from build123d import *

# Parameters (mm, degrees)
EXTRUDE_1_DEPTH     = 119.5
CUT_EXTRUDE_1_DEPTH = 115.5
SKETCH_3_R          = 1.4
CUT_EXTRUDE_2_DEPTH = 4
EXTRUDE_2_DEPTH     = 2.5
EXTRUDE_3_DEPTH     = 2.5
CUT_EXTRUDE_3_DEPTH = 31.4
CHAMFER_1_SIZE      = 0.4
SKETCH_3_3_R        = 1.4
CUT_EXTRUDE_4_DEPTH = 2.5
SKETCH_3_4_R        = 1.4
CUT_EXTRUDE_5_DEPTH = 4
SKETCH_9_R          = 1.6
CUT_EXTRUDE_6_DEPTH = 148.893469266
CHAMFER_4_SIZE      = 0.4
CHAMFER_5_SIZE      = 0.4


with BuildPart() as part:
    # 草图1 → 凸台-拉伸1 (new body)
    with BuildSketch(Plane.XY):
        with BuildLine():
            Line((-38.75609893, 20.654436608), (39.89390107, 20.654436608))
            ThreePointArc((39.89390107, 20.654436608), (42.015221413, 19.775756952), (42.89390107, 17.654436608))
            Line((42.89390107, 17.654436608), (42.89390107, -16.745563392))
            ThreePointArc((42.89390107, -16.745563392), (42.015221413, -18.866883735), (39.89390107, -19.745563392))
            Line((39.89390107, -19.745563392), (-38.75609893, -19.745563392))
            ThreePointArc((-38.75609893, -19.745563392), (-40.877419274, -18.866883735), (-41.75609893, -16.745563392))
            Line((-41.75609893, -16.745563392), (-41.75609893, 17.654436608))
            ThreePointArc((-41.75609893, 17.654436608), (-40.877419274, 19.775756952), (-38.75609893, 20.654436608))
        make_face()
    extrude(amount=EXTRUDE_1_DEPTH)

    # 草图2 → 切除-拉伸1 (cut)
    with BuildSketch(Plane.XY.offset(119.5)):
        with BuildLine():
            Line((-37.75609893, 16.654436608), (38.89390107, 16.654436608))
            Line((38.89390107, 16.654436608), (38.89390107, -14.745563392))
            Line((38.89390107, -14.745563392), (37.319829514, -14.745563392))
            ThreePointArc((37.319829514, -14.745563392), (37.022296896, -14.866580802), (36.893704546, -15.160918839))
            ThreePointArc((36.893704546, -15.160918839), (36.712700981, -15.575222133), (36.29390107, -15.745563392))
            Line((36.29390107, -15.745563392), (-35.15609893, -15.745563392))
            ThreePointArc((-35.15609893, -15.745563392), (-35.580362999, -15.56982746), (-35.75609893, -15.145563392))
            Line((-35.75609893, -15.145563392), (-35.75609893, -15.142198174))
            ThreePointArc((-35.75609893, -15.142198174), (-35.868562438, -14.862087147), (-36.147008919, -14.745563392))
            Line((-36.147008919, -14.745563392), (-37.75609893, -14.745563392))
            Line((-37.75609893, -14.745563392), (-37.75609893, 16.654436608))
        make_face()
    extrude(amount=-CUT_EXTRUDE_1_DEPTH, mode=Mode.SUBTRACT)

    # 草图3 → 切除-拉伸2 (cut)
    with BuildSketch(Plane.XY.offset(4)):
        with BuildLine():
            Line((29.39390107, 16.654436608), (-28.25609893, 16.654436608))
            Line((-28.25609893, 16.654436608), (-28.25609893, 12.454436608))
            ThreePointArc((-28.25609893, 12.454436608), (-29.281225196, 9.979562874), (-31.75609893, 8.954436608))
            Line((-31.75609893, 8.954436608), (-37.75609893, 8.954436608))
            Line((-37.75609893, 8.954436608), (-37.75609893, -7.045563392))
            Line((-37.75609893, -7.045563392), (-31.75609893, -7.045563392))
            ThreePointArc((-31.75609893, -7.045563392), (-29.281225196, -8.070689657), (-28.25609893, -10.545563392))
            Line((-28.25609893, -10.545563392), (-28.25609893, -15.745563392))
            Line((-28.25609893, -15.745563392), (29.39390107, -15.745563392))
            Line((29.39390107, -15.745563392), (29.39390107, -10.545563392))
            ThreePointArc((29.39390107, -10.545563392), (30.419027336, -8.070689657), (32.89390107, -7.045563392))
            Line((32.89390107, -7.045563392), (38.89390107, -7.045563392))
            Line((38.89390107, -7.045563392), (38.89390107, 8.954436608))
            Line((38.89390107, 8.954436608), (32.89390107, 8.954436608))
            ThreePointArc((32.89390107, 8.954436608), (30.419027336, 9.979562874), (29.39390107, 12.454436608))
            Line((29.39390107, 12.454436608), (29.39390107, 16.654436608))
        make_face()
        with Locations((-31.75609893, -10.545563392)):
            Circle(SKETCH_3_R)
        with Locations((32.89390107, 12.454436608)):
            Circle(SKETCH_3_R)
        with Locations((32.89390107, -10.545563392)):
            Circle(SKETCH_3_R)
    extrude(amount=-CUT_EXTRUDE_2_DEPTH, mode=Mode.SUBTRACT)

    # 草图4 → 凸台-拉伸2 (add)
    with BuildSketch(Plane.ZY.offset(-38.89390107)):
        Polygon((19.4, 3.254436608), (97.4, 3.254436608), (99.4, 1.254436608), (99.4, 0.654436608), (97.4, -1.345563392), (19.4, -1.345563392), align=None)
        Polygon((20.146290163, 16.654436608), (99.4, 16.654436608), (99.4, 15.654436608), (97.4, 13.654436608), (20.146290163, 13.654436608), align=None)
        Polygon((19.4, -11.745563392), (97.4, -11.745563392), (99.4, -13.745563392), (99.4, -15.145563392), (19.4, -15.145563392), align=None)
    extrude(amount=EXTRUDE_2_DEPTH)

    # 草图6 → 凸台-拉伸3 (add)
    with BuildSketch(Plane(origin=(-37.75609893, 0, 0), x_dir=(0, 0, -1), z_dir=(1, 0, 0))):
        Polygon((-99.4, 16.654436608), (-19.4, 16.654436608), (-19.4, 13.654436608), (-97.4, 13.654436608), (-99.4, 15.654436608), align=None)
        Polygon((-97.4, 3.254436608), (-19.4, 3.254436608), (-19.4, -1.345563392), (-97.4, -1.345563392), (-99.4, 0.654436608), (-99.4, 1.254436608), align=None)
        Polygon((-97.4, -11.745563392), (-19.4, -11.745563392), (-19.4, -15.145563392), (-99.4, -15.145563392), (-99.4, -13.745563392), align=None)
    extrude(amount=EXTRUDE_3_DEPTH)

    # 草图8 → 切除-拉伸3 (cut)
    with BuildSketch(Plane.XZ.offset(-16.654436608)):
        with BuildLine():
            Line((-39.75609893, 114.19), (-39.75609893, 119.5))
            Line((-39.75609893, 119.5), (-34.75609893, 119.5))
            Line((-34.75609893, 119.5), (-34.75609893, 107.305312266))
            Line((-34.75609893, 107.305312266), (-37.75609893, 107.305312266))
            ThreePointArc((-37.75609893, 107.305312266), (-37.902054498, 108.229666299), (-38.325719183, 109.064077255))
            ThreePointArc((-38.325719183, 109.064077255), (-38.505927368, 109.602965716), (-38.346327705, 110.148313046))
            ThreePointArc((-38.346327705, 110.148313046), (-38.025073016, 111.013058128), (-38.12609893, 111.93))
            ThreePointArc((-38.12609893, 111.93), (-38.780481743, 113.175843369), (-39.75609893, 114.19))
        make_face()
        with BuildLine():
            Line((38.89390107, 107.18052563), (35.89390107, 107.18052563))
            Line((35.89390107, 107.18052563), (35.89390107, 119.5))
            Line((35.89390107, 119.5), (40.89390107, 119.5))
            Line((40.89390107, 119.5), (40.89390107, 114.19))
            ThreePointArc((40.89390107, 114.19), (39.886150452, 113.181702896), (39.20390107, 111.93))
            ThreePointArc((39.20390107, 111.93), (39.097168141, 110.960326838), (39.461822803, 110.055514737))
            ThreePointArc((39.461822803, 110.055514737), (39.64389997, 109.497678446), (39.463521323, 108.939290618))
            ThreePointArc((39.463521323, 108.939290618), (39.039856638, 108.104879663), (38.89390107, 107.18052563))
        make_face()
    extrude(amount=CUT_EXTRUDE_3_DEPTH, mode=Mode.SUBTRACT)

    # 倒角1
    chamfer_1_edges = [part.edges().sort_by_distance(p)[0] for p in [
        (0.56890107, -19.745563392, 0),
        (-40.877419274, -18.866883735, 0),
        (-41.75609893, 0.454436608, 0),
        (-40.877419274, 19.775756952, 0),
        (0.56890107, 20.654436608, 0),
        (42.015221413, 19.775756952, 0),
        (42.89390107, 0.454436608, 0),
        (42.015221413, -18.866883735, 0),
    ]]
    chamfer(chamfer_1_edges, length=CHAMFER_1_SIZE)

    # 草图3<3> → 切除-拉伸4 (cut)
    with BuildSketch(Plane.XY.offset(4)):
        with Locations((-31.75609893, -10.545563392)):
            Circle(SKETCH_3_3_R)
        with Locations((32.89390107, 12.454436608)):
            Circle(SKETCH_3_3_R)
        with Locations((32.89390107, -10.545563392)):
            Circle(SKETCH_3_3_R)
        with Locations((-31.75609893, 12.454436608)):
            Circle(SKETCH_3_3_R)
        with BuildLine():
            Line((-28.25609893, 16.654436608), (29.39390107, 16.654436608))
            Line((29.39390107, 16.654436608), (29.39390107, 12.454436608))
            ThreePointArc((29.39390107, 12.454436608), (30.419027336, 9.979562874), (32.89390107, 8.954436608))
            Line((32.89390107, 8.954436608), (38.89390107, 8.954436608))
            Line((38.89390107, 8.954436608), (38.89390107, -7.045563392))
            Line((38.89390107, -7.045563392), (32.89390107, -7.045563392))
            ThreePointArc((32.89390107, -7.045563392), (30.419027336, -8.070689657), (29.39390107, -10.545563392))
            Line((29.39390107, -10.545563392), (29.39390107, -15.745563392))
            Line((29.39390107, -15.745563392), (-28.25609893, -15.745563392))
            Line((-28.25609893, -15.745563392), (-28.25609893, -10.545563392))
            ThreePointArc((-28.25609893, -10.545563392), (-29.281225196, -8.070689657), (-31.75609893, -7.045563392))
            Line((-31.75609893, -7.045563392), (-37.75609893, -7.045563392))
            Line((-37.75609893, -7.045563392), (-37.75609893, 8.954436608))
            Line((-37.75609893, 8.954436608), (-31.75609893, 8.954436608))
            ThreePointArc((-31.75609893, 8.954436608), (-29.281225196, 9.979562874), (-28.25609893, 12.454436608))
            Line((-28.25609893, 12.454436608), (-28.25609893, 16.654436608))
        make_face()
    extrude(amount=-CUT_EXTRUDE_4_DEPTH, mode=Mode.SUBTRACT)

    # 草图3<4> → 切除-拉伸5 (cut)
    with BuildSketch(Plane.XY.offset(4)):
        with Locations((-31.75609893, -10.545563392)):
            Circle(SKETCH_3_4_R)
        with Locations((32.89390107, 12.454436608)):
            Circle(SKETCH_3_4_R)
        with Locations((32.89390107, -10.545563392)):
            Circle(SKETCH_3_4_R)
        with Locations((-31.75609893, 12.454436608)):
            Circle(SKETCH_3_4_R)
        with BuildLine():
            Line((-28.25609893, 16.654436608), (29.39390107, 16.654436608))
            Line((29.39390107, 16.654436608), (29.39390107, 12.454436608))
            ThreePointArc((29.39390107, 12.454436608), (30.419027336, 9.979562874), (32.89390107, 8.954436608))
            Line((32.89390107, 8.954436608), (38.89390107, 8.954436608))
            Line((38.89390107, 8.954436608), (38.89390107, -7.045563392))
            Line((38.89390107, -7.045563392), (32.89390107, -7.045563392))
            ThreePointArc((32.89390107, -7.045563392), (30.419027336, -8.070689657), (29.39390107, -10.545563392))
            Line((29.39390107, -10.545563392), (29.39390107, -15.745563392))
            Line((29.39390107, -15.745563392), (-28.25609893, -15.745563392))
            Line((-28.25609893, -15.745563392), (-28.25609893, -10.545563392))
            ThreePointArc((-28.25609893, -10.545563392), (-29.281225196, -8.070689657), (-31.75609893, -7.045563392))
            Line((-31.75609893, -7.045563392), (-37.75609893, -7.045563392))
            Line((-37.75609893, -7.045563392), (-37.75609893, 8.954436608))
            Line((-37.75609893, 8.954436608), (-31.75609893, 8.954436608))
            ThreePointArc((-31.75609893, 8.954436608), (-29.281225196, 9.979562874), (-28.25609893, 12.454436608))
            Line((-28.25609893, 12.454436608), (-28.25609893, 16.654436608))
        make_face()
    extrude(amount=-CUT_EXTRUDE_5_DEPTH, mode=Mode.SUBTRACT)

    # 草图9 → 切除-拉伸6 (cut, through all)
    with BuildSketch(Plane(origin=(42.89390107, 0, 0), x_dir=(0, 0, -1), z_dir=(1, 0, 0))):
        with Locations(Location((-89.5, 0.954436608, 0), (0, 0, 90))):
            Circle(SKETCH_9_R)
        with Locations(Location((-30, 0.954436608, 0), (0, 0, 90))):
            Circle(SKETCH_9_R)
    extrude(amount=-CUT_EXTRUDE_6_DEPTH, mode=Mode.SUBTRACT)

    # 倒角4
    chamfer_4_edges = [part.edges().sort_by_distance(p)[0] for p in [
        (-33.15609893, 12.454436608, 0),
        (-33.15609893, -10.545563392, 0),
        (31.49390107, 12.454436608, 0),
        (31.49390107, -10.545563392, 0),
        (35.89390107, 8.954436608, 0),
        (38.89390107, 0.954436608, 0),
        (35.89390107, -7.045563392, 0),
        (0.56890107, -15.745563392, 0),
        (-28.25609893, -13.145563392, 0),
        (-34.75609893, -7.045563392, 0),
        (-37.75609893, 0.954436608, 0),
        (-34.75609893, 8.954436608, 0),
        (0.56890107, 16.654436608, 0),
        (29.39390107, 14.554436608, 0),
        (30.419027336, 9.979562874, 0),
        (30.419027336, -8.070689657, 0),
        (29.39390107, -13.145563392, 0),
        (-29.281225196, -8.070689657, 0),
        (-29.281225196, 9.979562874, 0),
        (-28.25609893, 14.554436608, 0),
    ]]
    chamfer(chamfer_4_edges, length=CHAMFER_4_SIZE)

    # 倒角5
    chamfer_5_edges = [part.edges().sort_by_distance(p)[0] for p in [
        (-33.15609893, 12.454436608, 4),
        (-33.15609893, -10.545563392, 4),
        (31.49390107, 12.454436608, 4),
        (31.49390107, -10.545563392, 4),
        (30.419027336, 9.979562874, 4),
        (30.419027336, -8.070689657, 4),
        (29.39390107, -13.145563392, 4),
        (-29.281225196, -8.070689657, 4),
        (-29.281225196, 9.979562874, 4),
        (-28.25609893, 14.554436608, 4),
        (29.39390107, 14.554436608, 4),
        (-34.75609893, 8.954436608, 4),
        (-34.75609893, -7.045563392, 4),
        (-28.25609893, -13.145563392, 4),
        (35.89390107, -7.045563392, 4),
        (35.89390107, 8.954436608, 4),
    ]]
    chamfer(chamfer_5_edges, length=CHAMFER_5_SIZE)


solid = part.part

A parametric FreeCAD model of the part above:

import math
import FreeCAD as App
import Part
import Sketcher

V = App.Vector
Q = App.Units.Quantity


def edges_at(feature, points):
    """Names of the edges that pass closest to the given points."""
    edges = feature.Shape.Edges
    near = lambda p: min(range(len(edges)), key=lambda i: edges[i].distToShape(Part.Vertex(*p))[0])
    return sorted({f"Edge{near(p) + 1}" for p in points})

doc = App.newDocument("Part")
body = doc.addObject("PartDesign::Body", "Body")

sketch1 = body.newObject("Sketcher::SketchObject", "Sketch")
sketch1.AttachmentSupport = (doc.getObject("XY_Plane"), [""])
sketch1.MapMode = "FlatFace"
sketch1.addGeometry(Part.LineSegment(V(39.9, 20.7, 0), V(-38.8, 20.7, 0)), False)
sketch1.addGeometry(Part.ArcOfCircle(Part.Circle(V(-38.8, 17.7, 0), V(0, 0, 1), 3), math.radians(90), math.radians(180)), False)
sketch1.addGeometry(Part.LineSegment(V(-41.8, 17.7, 0), V(-41.8, -16.7, 0)), False)
sketch1.addGeometry(Part.ArcOfCircle(Part.Circle(V(-38.8, -16.7, 0), V(0, 0, 1), 3), math.radians(180), math.radians(270)), False)
sketch1.addGeometry(Part.LineSegment(V(-38.8, -19.7, 0), V(39.9, -19.7, 0)), False)
sketch1.addGeometry(Part.ArcOfCircle(Part.Circle(V(39.9, -16.7, 0), V(0, 0, 1), 3), math.radians(-90), math.radians(0)), False)
sketch1.addGeometry(Part.LineSegment(V(42.9, -16.7, 0), V(42.9, 17.7, 0)), False)
sketch1.addGeometry(Part.ArcOfCircle(Part.Circle(V(39.9, 17.7, 0), V(0, 0, 1), 3), math.radians(0), math.radians(90)), False)
sketch1.addConstraint(Sketcher.Constraint("Tangent", 0, 2, 1, 1))
sketch1.addConstraint(Sketcher.Constraint("Tangent", 1, 2, 2, 1))
sketch1.addConstraint(Sketcher.Constraint("Tangent", 2, 2, 3, 1))
sketch1.addConstraint(Sketcher.Constraint("Tangent", 3, 2, 4, 1))
sketch1.addConstraint(Sketcher.Constraint("Tangent", 4, 2, 5, 1))
sketch1.addConstraint(Sketcher.Constraint("Tangent", 5, 2, 6, 1))
sketch1.addConstraint(Sketcher.Constraint("Tangent", 6, 2, 7, 1))
sketch1.addConstraint(Sketcher.Constraint("Tangent", 7, 2, 0, 1))
sketch1.addConstraint(Sketcher.Constraint("Horizontal", 0))
sketch1.addConstraint(Sketcher.Constraint("Vertical", 2))
sketch1.addConstraint(Sketcher.Constraint("Horizontal", 4))
sketch1.addConstraint(Sketcher.Constraint("Vertical", 6))
sketch1.addConstraint(Sketcher.Constraint("Equal", 1, 3))
sketch1.addConstraint(Sketcher.Constraint("Equal", 3, 5))
sketch1.addConstraint(Sketcher.Constraint("Equal", 5, 7))
sketch1.addConstraint(Sketcher.Constraint("Radius", 1, Q("3 mm")))
sketch1.addConstraint(Sketcher.Constraint("DistanceY", 2, 2, 2, 1, Q("34.4 mm")))
sketch1.addConstraint(Sketcher.Constraint("DistanceX", 0, 2, 0, 1, Q("78.65 mm")))
sketch1.addConstraint(Sketcher.Constraint("DistanceX", 1, 3, -1, 1, Q("38.756099 mm")))
sketch1.addConstraint(Sketcher.Constraint("DistanceY", -1, 1, 1, 3, Q("17.654437 mm")))
pad1 = body.newObject("PartDesign::Pad", "Pad")
pad1.Profile = sketch1
pad1.Length = 119.5

sketch2 = body.newObject("Sketcher::SketchObject", "Sketch001")
sketch2.AttachmentSupport = (doc.getObject("XY_Plane"), [""])
sketch2.MapMode = "FlatFace"
sketch2.AttachmentOffset = App.Placement(V(0, 0, 119.5), App.Rotation())
sketch2.addGeometry(Part.LineSegment(V(38.893901, 16.654437, 0), V(-37.756099, 16.654437, 0)), False)
sketch2.addGeometry(Part.LineSegment(V(-37.756099, 16.654437, 0), V(-37.756099, -14.745563, 0)), False)
sketch2.addGeometry(Part.LineSegment(V(-37.756099, -14.745563, 0), V(-36.147009, -14.745563, 0)), False)
sketch2.addGeometry(Part.ArcOfCircle(Part.Circle(V(-36.147009, -15.136515, 0), V(0, 0, 1), 0.390951), math.radians(-0.83297), math.radians(90)), False)
sketch2.addGeometry(Part.LineSegment(V(-35.756099, -15.142198, 0), V(-35.756099, -15.145563, 0)), False)
sketch2.addGeometry(Part.ArcOfCircle(Part.Circle(V(-35.156099, -15.145563, 0), V(0, 0, 1), 0.6), math.radians(-180), math.radians(-90)), False)
sketch2.addGeometry(Part.LineSegment(V(-35.156099, -15.745563, 0), V(36.293901, -15.745563, 0)), False)
sketch2.addGeometry(Part.ArcOfCircle(Part.Circle(V(36.293901, -15.145563, 0), V(0, 0, 1), 0.6), math.radians(-90), math.radians(-1.466497)), False)
sketch2.addGeometry(Part.ArcOfCircle(Part.Circle(V(37.31983, -15.171828, 0), V(0, 0, 1), 0.426265), math.radians(90), math.radians(178.533503)), False)
sketch2.addGeometry(Part.LineSegment(V(37.31983, -14.745563, 0), V(38.893901, -14.745563, 0)), False)
sketch2.addGeometry(Part.LineSegment(V(38.893901, -14.745563, 0), V(38.893901, 16.654437, 0)), False)
sketch2.addConstraint(Sketcher.Constraint("Coincident", 0, 2, 1, 1))
sketch2.addConstraint(Sketcher.Constraint("Coincident", 1, 2, 2, 1))
sketch2.addConstraint(Sketcher.Constraint("Coincident", 2, 2, 3, 2))
sketch2.addConstraint(Sketcher.Constraint("Coincident", 3, 1, 4, 1))
sketch2.addConstraint(Sketcher.Constraint("Coincident", 4, 2, 5, 1))
sketch2.addConstraint(Sketcher.Constraint("Coincident", 5, 2, 6, 1))
sketch2.addConstraint(Sketcher.Constraint("Coincident", 6, 2, 7, 1))
sketch2.addConstraint(Sketcher.Constraint("Coincident", 7, 2, 8, 2))
sketch2.addConstraint(Sketcher.Constraint("Coincident", 8, 1, 9, 1))
sketch2.addConstraint(Sketcher.Constraint("Coincident", 9, 2, 10, 1))
sketch2.addConstraint(Sketcher.Constraint("Coincident", 10, 2, 0, 1))
sketch2.addConstraint(Sketcher.Constraint("Horizontal", 0))
sketch2.addConstraint(Sketcher.Constraint("Vertical", 1))
sketch2.addConstraint(Sketcher.Constraint("Horizontal", 2))
sketch2.addConstraint(Sketcher.Constraint("Vertical", 4))
sketch2.addConstraint(Sketcher.Constraint("Horizontal", 6))
sketch2.addConstraint(Sketcher.Constraint("Horizontal", 9))
sketch2.addConstraint(Sketcher.Constraint("Vertical", 10))
sketch2.addConstraint(Sketcher.Constraint("Radius", 5, Q("0.6 mm")))
sketch2.addConstraint(Sketcher.Constraint("Radius", 7, Q("0.6 mm")))
sketch2.addConstraint(Sketcher.Constraint("DistanceY", 1, 2, 1, 1, Q("31.4 mm")))
sketch2.addConstraint(Sketcher.Constraint("DistanceY", 10, 1, 10, 2, Q("31.4 mm")))
sketch2.addConstraint(Sketcher.Constraint("DistanceX", 1, 2, 3, 1, Q("2 mm")))
sketch2.addConstraint(Sketcher.Constraint("DistanceY", 5, 2, 2, 2, Q("1 mm")))
sketch2.addConstraint(Sketcher.Constraint("DistanceX", 0, 2, 0, 1, Q("76.65 mm")))
sketch2.addConstraint(Sketcher.Constraint("DistanceX", 6, 1, 6, 2, Q("71.45 mm")))
sketch2.addConstraint(Sketcher.Constraint("DistanceY", 4, 2, 2, 2, Q("0.4 mm")))
sketch2.addConstraint(Sketcher.Constraint("DistanceX", 4, 2, 5, 2, Q("0.6 mm")))
sketch2.addConstraint(Sketcher.Constraint("DistanceX", 7, 3, 9, 2, Q("2.6 mm")))
sketch2.addConstraint(Sketcher.Constraint("Radius", 3, Q("0.390951 mm")))
sketch2.addConstraint(Sketcher.Constraint("Radius", 8, Q("0.426265 mm")))
sketch2.addConstraint(Sketcher.Constraint("DistanceX", 2, 1, 2, 2, Q("1.60909 mm")))
sketch2.addConstraint(Sketcher.Constraint("DistanceX", 9, 1, 9, 2, Q("1.574072 mm")))
sketch2.addConstraint(Sketcher.Constraint("DistanceX", 5, 3, -1, 1, Q("35.156099 mm")))
sketch2.addConstraint(Sketcher.Constraint("DistanceY", 3, 1, -1, 1, Q("15.142198 mm")))
sketch2.addConstraint(Sketcher.Constraint("DistanceY", 4, 2, 4, 1, Q("0.003365 mm")))
sketch2.addConstraint(Sketcher.Constraint("DistanceY", 7, 2, -1, 1, Q("15.160919 mm")))
pocket1 = body.newObject("PartDesign::Pocket", "Pocket")
pocket1.Profile = sketch2
pocket1.Length = 115.5

sketch3 = body.newObject("Sketcher::SketchObject", "Sketch002")
sketch3.AttachmentSupport = (doc.getObject("XY_Plane"), [""])
sketch3.MapMode = "FlatFace"
sketch3.AttachmentOffset = App.Placement(V(0, 0, 4), App.Rotation())
sketch3.addGeometry(Part.LineSegment(V(29.4, 16.7, 0), V(-28.3, 16.7, 0)), False)
sketch3.addGeometry(Part.LineSegment(V(-28.3, 16.7, 0), V(-28.3, 12.5, 0)), False)
sketch3.addGeometry(Part.ArcOfCircle(Part.Circle(V(-31.8, 12.5, 0), V(0, 0, 1), 3.5), math.radians(-90), math.radians(0)), False)
sketch3.addGeometry(Part.LineSegment(V(-31.8, 9, 0), V(-37.8, 9, 0)), False)
sketch3.addGeometry(Part.LineSegment(V(-37.8, 9, 0), V(-37.8, -7, 0)), False)
sketch3.addGeometry(Part.LineSegment(V(-37.8, -7, 0), V(-31.8, -7, 0)), False)
sketch3.addGeometry(Part.ArcOfCircle(Part.Circle(V(-31.8, -10.5, 0), V(0, 0, 1), 3.5), math.radians(0), math.radians(90)), False)
sketch3.addGeometry(Part.LineSegment(V(-28.3, -10.5, 0), V(-28.3, -15.7, 0)), False)
sketch3.addGeometry(Part.LineSegment(V(-28.3, -15.7, 0), V(29.4, -15.7, 0)), False)
sketch3.addGeometry(Part.LineSegment(V(29.4, -15.7, 0), V(29.4, -10.5, 0)), False)
sketch3.addGeometry(Part.ArcOfCircle(Part.Circle(V(32.9, -10.5, 0), V(0, 0, 1), 3.5), math.radians(90), math.radians(180)), False)
sketch3.addGeometry(Part.LineSegment(V(32.9, -7, 0), V(38.9, -7, 0)), False)
sketch3.addGeometry(Part.LineSegment(V(38.9, -7, 0), V(38.9, 9, 0)), False)
sketch3.addGeometry(Part.LineSegment(V(38.9, 9, 0), V(32.9, 9, 0)), False)
sketch3.addGeometry(Part.ArcOfCircle(Part.Circle(V(32.9, 12.5, 0), V(0, 0, 1), 3.5), math.radians(-180), math.radians(-90)), False)
sketch3.addGeometry(Part.LineSegment(V(29.4, 12.5, 0), V(29.4, 16.7, 0)), False)
sketch3.addGeometry(Part.Circle(V(-31.8, -10.5, 0), V(0, 0, 1), 1.4), False)
sketch3.addGeometry(Part.Circle(V(32.9, 12.5, 0), V(0, 0, 1), 1.4), False)
sketch3.addGeometry(Part.Circle(V(32.9, -10.5, 0), V(0, 0, 1), 1.4), False)
sketch3.addConstraint(Sketcher.Constraint("Coincident", 0, 2, 1, 1))
sketch3.addConstraint(Sketcher.Constraint("Tangent", 1, 2, 2, 2))
sketch3.addConstraint(Sketcher.Constraint("Tangent", 2, 1, 3, 1))
sketch3.addConstraint(Sketcher.Constraint("Coincident", 3, 2, 4, 1))
sketch3.addConstraint(Sketcher.Constraint("Coincident", 4, 2, 5, 1))
sketch3.addConstraint(Sketcher.Constraint("Tangent", 5, 2, 6, 2))
sketch3.addConstraint(Sketcher.Constraint("Tangent", 6, 1, 7, 1))
sketch3.addConstraint(Sketcher.Constraint("Coincident", 7, 2, 8, 1))
sketch3.addConstraint(Sketcher.Constraint("Coincident", 8, 2, 9, 1))
sketch3.addConstraint(Sketcher.Constraint("Tangent", 9, 2, 10, 2))
sketch3.addConstraint(Sketcher.Constraint("Tangent", 10, 1, 11, 1))
sketch3.addConstraint(Sketcher.Constraint("Coincident", 11, 2, 12, 1))
sketch3.addConstraint(Sketcher.Constraint("Coincident", 12, 2, 13, 1))
sketch3.addConstraint(Sketcher.Constraint("Tangent", 13, 2, 14, 2))
sketch3.addConstraint(Sketcher.Constraint("Tangent", 14, 1, 15, 1))
sketch3.addConstraint(Sketcher.Constraint("Coincident", 15, 2, 0, 1))
sketch3.addConstraint(Sketcher.Constraint("Horizontal", 0))
sketch3.addConstraint(Sketcher.Constraint("Vertical", 1))
sketch3.addConstraint(Sketcher.Constraint("Horizontal", 3))
sketch3.addConstraint(Sketcher.Constraint("Vertical", 4))
sketch3.addConstraint(Sketcher.Constraint("Horizontal", 5))
sketch3.addConstraint(Sketcher.Constraint("Vertical", 7))
sketch3.addConstraint(Sketcher.Constraint("Horizontal", 8))
sketch3.addConstraint(Sketcher.Constraint("Vertical", 9))
sketch3.addConstraint(Sketcher.Constraint("Horizontal", 11))
sketch3.addConstraint(Sketcher.Constraint("Vertical", 12))
sketch3.addConstraint(Sketcher.Constraint("Horizontal", 13))
sketch3.addConstraint(Sketcher.Constraint("Vertical", 15))
sketch3.addConstraint(Sketcher.Constraint("Coincident", 16, 3, 6, 3))
sketch3.addConstraint(Sketcher.Constraint("Coincident", 17, 3, 14, 3))
sketch3.addConstraint(Sketcher.Constraint("Coincident", 18, 3, 10, 3))
sketch3.addConstraint(Sketcher.Constraint("Equal", 2, 6))
sketch3.addConstraint(Sketcher.Constraint("Equal", 6, 10))
sketch3.addConstraint(Sketcher.Constraint("Equal", 10, 14))
sketch3.addConstraint(Sketcher.Constraint("Equal", 16, 17))
sketch3.addConstraint(Sketcher.Constraint("Equal", 17, 18))
sketch3.addConstraint(Sketcher.Constraint("Horizontal", 6, 3, 10, 3))
sketch3.addConstraint(Sketcher.Constraint("Horizontal", 2, 3, 14, 3))
sketch3.addConstraint(Sketcher.Constraint("Vertical", 2, 3, 6, 3))
sketch3.addConstraint(Sketcher.Constraint("Vertical", 10, 3, 14, 3))
sketch3.addConstraint(Sketcher.Constraint("Equal", 5, 11))
sketch3.addConstraint(Sketcher.Constraint("Diameter", 16, Q("2.8 mm")))
sketch3.addConstraint(Sketcher.Constraint("Radius", 2, Q("3.5 mm")))
sketch3.addConstraint(Sketcher.Constraint("DistanceX", 3, 2, 3, 1, Q("6 mm")))
sketch3.addConstraint(Sketcher.Constraint("DistanceY", 4, 2, 4, 1, Q("16 mm")))
sketch3.addConstraint(Sketcher.Constraint("DistanceY", 1, 2, 1, 1, Q("4.2 mm")))
sketch3.addConstraint(Sketcher.Constraint("DistanceY", 7, 2, 7, 1, Q("5.2 mm")))
sketch3.addConstraint(Sketcher.Constraint("DistanceX", 0, 2, 0, 1, Q("57.65 mm")))
sketch3.addConstraint(Sketcher.Constraint("DistanceX", 2, 3, -1, 1, Q("31.756099 mm")))
sketch3.addConstraint(Sketcher.Constraint("DistanceY", -1, 1, 2, 3, Q("12.454437 mm")))
pocket2 = body.newObject("PartDesign::Pocket", "Pocket001")
pocket2.Profile = sketch3
pocket2.Length = 4

sketch4 = body.newObject("Sketcher::SketchObject", "Sketch003")
sketch4.AttachmentSupport = (doc.getObject("YZ_Plane"), [""])
sketch4.MapMode = "FlatFace"
sketch4.AttachmentOffset = App.Placement(V(0, 0, 38.893901), App.Rotation())
sketch4.addGeometry(Part.LineSegment(V(3.3, 97.4, 0), V(3.3, 19.4, 0)), False)
sketch4.addGeometry(Part.LineSegment(V(3.3, 19.4, 0), V(-1.3, 19.4, 0)), False)
sketch4.addGeometry(Part.LineSegment(V(-1.3, 19.4, 0), V(-1.3, 97.4, 0)), False)
sketch4.addGeometry(Part.LineSegment(V(-1.3, 97.4, 0), V(0.7, 99.4, 0)), False)
sketch4.addGeometry(Part.LineSegment(V(0.7, 99.4, 0), V(1.3, 99.4, 0)), False)
sketch4.addGeometry(Part.LineSegment(V(1.3, 99.4, 0), V(3.3, 97.4, 0)), False)
sketch4.addGeometry(Part.LineSegment(V(16.7, 99.4, 0), V(16.7, 20.1, 0)), False)
sketch4.addGeometry(Part.LineSegment(V(16.7, 20.1, 0), V(13.7, 20.1, 0)), False)
sketch4.addGeometry(Part.LineSegment(V(13.7, 20.1, 0), V(13.7, 97.4, 0)), False)
sketch4.addGeometry(Part.LineSegment(V(13.7, 97.4, 0), V(15.7, 99.4, 0)), False)
sketch4.addGeometry(Part.LineSegment(V(15.7, 99.4, 0), V(16.7, 99.4, 0)), False)
sketch4.addGeometry(Part.LineSegment(V(-11.7, 97.4, 0), V(-11.7, 19.4, 0)), False)
sketch4.addGeometry(Part.LineSegment(V(-11.7, 19.4, 0), V(-15.1, 19.4, 0)), False)
sketch4.addGeometry(Part.LineSegment(V(-15.1, 19.4, 0), V(-15.1, 99.4, 0)), False)
sketch4.addGeometry(Part.LineSegment(V(-15.1, 99.4, 0), V(-13.7, 99.4, 0)), False)
sketch4.addGeometry(Part.LineSegment(V(-13.7, 99.4, 0), V(-11.7, 97.4, 0)), False)
sketch4.addConstraint(Sketcher.Constraint("Coincident", 0, 2, 1, 1))
sketch4.addConstraint(Sketcher.Constraint("Coincident", 1, 2, 2, 1))
sketch4.addConstraint(Sketcher.Constraint("Coincident", 2, 2, 3, 1))
sketch4.addConstraint(Sketcher.Constraint("Coincident", 3, 2, 4, 1))
sketch4.addConstraint(Sketcher.Constraint("Coincident", 4, 2, 5, 1))
sketch4.addConstraint(Sketcher.Constraint("Coincident", 5, 2, 0, 1))
sketch4.addConstraint(Sketcher.Constraint("Coincident", 6, 2, 7, 1))
sketch4.addConstraint(Sketcher.Constraint("Coincident", 7, 2, 8, 1))
sketch4.addConstraint(Sketcher.Constraint("Coincident", 8, 2, 9, 1))
sketch4.addConstraint(Sketcher.Constraint("Coincident", 9, 2, 10, 1))
sketch4.addConstraint(Sketcher.Constraint("Coincident", 10, 2, 6, 1))
sketch4.addConstraint(Sketcher.Constraint("Coincident", 11, 2, 12, 1))
sketch4.addConstraint(Sketcher.Constraint("Coincident", 12, 2, 13, 1))
sketch4.addConstraint(Sketcher.Constraint("Coincident", 13, 2, 14, 1))
sketch4.addConstraint(Sketcher.Constraint("Coincident", 14, 2, 15, 1))
sketch4.addConstraint(Sketcher.Constraint("Coincident", 15, 2, 11, 1))
sketch4.addConstraint(Sketcher.Constraint("Vertical", 0))
sketch4.addConstraint(Sketcher.Constraint("Horizontal", 1))
sketch4.addConstraint(Sketcher.Constraint("Vertical", 2))
sketch4.addConstraint(Sketcher.Constraint("Horizontal", 4))
sketch4.addConstraint(Sketcher.Constraint("Vertical", 6))
sketch4.addConstraint(Sketcher.Constraint("Horizontal", 7))
sketch4.addConstraint(Sketcher.Constraint("Vertical", 8))
sketch4.addConstraint(Sketcher.Constraint("Horizontal", 10))
sketch4.addConstraint(Sketcher.Constraint("Vertical", 11))
sketch4.addConstraint(Sketcher.Constraint("Horizontal", 12))
sketch4.addConstraint(Sketcher.Constraint("Vertical", 13))
sketch4.addConstraint(Sketcher.Constraint("Horizontal", 14))
sketch4.addConstraint(Sketcher.Constraint("Perpendicular", 3, 5))
sketch4.addConstraint(Sketcher.Constraint("Perpendicular", 5, 9))
sketch4.addConstraint(Sketcher.Constraint("Perpendicular", 9, 15))
sketch4.addConstraint(Sketcher.Constraint("Horizontal", 2, 2, 5, 2))
sketch4.addConstraint(Sketcher.Constraint("Horizontal", 5, 2, 8, 2))
sketch4.addConstraint(Sketcher.Constraint("Horizontal", 4, 2, 9, 2))
sketch4.addConstraint(Sketcher.Constraint("Horizontal", 1, 2, 11, 2))
sketch4.addConstraint(Sketcher.Constraint("Horizontal", 10, 2, 13, 2))
sketch4.addConstraint(Sketcher.Constraint("Horizontal", 8, 2, 15, 2))
sketch4.addConstraint(Sketcher.Constraint("Equal", 3, 5))
sketch4.addConstraint(Sketcher.Constraint("DistanceX", 7, 2, 7, 1, Q("3 mm")))
sketch4.addConstraint(Sketcher.Constraint("DistanceX", 10, 1, 10, 2, Q("1 mm")))
sketch4.addConstraint(Sketcher.Constraint("DistanceY", 0, 2, 0, 1, Q("78 mm")))
sketch4.addConstraint(Sketcher.Constraint("DistanceX", 1, 2, 1, 1, Q("4.6 mm")))
sketch4.addConstraint(Sketcher.Constraint("DistanceX", 12, 2, 12, 1, Q("3.4 mm")))
sketch4.addConstraint(Sketcher.Constraint("DistanceX", 1, 2, 6, 2, Q("18 mm")))
sketch4.addConstraint(Sketcher.Constraint("DistanceX", 11, 2, 0, 2, Q("15 mm")))
sketch4.addConstraint(Sketcher.Constraint("DistanceY", -1, 1, 0, 2, Q("19.4 mm")))
sketch4.addConstraint(Sketcher.Constraint("DistanceY", 6, 2, 6, 1, Q("79.25371 mm")))
sketch4.addConstraint(Sketcher.Constraint("DistanceX", -1, 1, 0, 2, Q("3.254437 mm")))
pad2 = body.newObject("PartDesign::Pad", "Pad001")
pad2.Profile = sketch4
pad2.Length = 2.5
pad2.Reversed = True

sketch5 = body.newObject("Sketcher::SketchObject", "Sketch004")
sketch5.AttachmentSupport = (doc.getObject("YZ_Plane"), [""])
sketch5.MapMode = "FlatFace"
sketch5.AttachmentOffset = App.Placement(V(0, 0, -37.756099), App.Rotation())
sketch5.addGeometry(Part.LineSegment(V(16.7, 19.4, 0), V(16.7, 99.4, 0)), False)
sketch5.addGeometry(Part.LineSegment(V(16.7, 99.4, 0), V(15.7, 99.4, 0)), False)
sketch5.addGeometry(Part.LineSegment(V(15.7, 99.4, 0), V(13.7, 97.4, 0)), False)
sketch5.addGeometry(Part.LineSegment(V(13.7, 97.4, 0), V(13.7, 19.4, 0)), False)
sketch5.addGeometry(Part.LineSegment(V(13.7, 19.4, 0), V(16.7, 19.4, 0)), False)
sketch5.addGeometry(Part.LineSegment(V(3.3, 19.4, 0), V(3.3, 97.4, 0)), False)
sketch5.addGeometry(Part.LineSegment(V(3.3, 97.4, 0), V(1.3, 99.4, 0)), False)
sketch5.addGeometry(Part.LineSegment(V(1.3, 99.4, 0), V(0.7, 99.4, 0)), False)
sketch5.addGeometry(Part.LineSegment(V(0.7, 99.4, 0), V(-1.3, 97.4, 0)), False)
sketch5.addGeometry(Part.LineSegment(V(-1.3, 97.4, 0), V(-1.3, 19.4, 0)), False)
sketch5.addGeometry(Part.LineSegment(V(-1.3, 19.4, 0), V(3.3, 19.4, 0)), False)
sketch5.addGeometry(Part.LineSegment(V(-11.7, 19.4, 0), V(-11.7, 97.4, 0)), False)
sketch5.addGeometry(Part.LineSegment(V(-11.7, 97.4, 0), V(-13.7, 99.4, 0)), False)
sketch5.addGeometry(Part.LineSegment(V(-13.7, 99.4, 0), V(-15.1, 99.4, 0)), False)
sketch5.addGeometry(Part.LineSegment(V(-15.1, 99.4, 0), V(-15.1, 19.4, 0)), False)
sketch5.addGeometry(Part.LineSegment(V(-15.1, 19.4, 0), V(-11.7, 19.4, 0)), False)
sketch5.addConstraint(Sketcher.Constraint("Coincident", 0, 2, 1, 1))
sketch5.addConstraint(Sketcher.Constraint("Coincident", 1, 2, 2, 1))
sketch5.addConstraint(Sketcher.Constraint("Coincident", 2, 2, 3, 1))
sketch5.addConstraint(Sketcher.Constraint("Coincident", 3, 2, 4, 1))
sketch5.addConstraint(Sketcher.Constraint("Coincident", 4, 2, 0, 1))
sketch5.addConstraint(Sketcher.Constraint("Coincident", 5, 2, 6, 1))
sketch5.addConstraint(Sketcher.Constraint("Coincident", 6, 2, 7, 1))
sketch5.addConstraint(Sketcher.Constraint("Coincident", 7, 2, 8, 1))
sketch5.addConstraint(Sketcher.Constraint("Coincident", 8, 2, 9, 1))
sketch5.addConstraint(Sketcher.Constraint("Coincident", 9, 2, 10, 1))
sketch5.addConstraint(Sketcher.Constraint("Coincident", 10, 2, 5, 1))
sketch5.addConstraint(Sketcher.Constraint("Coincident", 11, 2, 12, 1))
sketch5.addConstraint(Sketcher.Constraint("Coincident", 12, 2, 13, 1))
sketch5.addConstraint(Sketcher.Constraint("Coincident", 13, 2, 14, 1))
sketch5.addConstraint(Sketcher.Constraint("Coincident", 14, 2, 15, 1))
sketch5.addConstraint(Sketcher.Constraint("Coincident", 15, 2, 11, 1))
sketch5.addConstraint(Sketcher.Constraint("Vertical", 0))
sketch5.addConstraint(Sketcher.Constraint("Horizontal", 1))
sketch5.addConstraint(Sketcher.Constraint("Vertical", 3))
sketch5.addConstraint(Sketcher.Constraint("Horizontal", 4))
sketch5.addConstraint(Sketcher.Constraint("Vertical", 5))
sketch5.addConstraint(Sketcher.Constraint("Horizontal", 7))
sketch5.addConstraint(Sketcher.Constraint("Vertical", 9))
sketch5.addConstraint(Sketcher.Constraint("Horizontal", 10))
sketch5.addConstraint(Sketcher.Constraint("Vertical", 11))
sketch5.addConstraint(Sketcher.Constraint("Horizontal", 13))
sketch5.addConstraint(Sketcher.Constraint("Vertical", 14))
sketch5.addConstraint(Sketcher.Constraint("Horizontal", 15))
sketch5.addConstraint(Sketcher.Constraint("Perpendicular", 2, 6))
sketch5.addConstraint(Sketcher.Constraint("Perpendicular", 6, 8))
sketch5.addConstraint(Sketcher.Constraint("Perpendicular", 8, 12))
sketch5.addConstraint(Sketcher.Constraint("Horizontal", 2, 2, 5, 2))
sketch5.addConstraint(Sketcher.Constraint("Horizontal", 1, 2, 6, 2))
sketch5.addConstraint(Sketcher.Constraint("Horizontal", 5, 2, 8, 2))
sketch5.addConstraint(Sketcher.Constraint("Horizontal", 4, 2, 9, 2))
sketch5.addConstraint(Sketcher.Constraint("Horizontal", 8, 2, 11, 2))
sketch5.addConstraint(Sketcher.Constraint("Horizontal", 7, 2, 12, 2))
sketch5.addConstraint(Sketcher.Constraint("Horizontal", 10, 2, 14, 2))
sketch5.addConstraint(Sketcher.Constraint("Equal", 2, 6))
sketch5.addConstraint(Sketcher.Constraint("DistanceX", 1, 2, 1, 1, Q("1 mm")))
sketch5.addConstraint(Sketcher.Constraint("DistanceX", 4, 1, 4, 2, Q("3 mm")))
sketch5.addConstraint(Sketcher.Constraint("DistanceY", 0, 1, 0, 2, Q("80 mm")))
sketch5.addConstraint(Sketcher.Constraint("DistanceX", 7, 2, 7, 1, Q("0.6 mm")))
sketch5.addConstraint(Sketcher.Constraint("DistanceX", 13, 2, 13, 1, Q("1.4 mm")))
sketch5.addConstraint(Sketcher.Constraint("DistanceX", 7, 2, 2, 2, Q("13 mm")))
sketch5.addConstraint(Sketcher.Constraint("DistanceX", 11, 2, 6, 2, Q("13 mm")))
sketch5.addConstraint(Sketcher.Constraint("DistanceY", -1, 1, 0, 2, Q("99.4 mm")))
sketch5.addConstraint(Sketcher.Constraint("DistanceX", -1, 1, 0, 2, Q("16.654437 mm")))
pad3 = body.newObject("PartDesign::Pad", "Pad002")
pad3.Profile = sketch5
pad3.Length = 2.5

sketch6 = body.newObject("Sketcher::SketchObject", "Sketch005")
sketch6.AttachmentSupport = (doc.getObject("XZ_Plane"), [""])
sketch6.MapMode = "FlatFace"
sketch6.AttachmentOffset = App.Placement(V(0, 0, -16.654437), App.Rotation())
sketch6.addGeometry(Part.LineSegment(V(-39.8, 119.5, 0), V(-39.8, 114.2, 0)), False)
sketch6.addGeometry(Part.ArcOfCircle(Part.Circle(V(-42.8, 110.3, 0), V(0, 0, 1), 5), math.radians(20), math.radians(52)), False)
sketch6.addGeometry(Part.ArcOfCircle(Part.Circle(V(-40, 111.3, 0), V(0, 0, 1), 2), math.radians(-34), math.radians(20)), False)
sketch6.addGeometry(Part.ArcOfCircle(Part.Circle(V(-37.6, 109.6, 0), V(0, 0, 1), 0.9), math.radians(146), math.radians(216)), False)
sketch6.addGeometry(Part.ArcOfCircle(Part.Circle(V(-40.8, 107.3, 0), V(0, 0, 1), 3), math.radians(0), math.radians(36)), False)
sketch6.addGeometry(Part.LineSegment(V(-37.8, 107.3, 0), V(-34.8, 107.3, 0)), False)
sketch6.addGeometry(Part.LineSegment(V(-34.8, 107.3, 0), V(-34.8, 119.5, 0)), False)
sketch6.addGeometry(Part.LineSegment(V(-34.8, 119.5, 0), V(-39.8, 119.5, 0)), False)
sketch6.addGeometry(Part.LineSegment(V(35.9, 107.2, 0), V(38.9, 107.2, 0)), False)
sketch6.addGeometry(Part.ArcOfCircle(Part.Circle(V(41.9, 107.2, 0), V(0, 0, 1), 3), math.radians(144), math.radians(180)), False)
sketch6.addGeometry(Part.ArcOfCircle(Part.Circle(V(38.7, 109.5, 0), V(0, 0, 1), 1), math.radians(-36), math.radians(36)), False)
sketch6.addGeometry(Part.ArcOfCircle(Part.Circle(V(41.1, 111.2, 0), V(0, 0, 1), 2), math.radians(160), math.radians(216)), False)
sketch6.addGeometry(Part.ArcOfCircle(Part.Circle(V(43.9, 110.2, 0), V(0, 0, 1), 5), math.radians(127), math.radians(160)), False)
sketch6.addGeometry(Part.LineSegment(V(40.9, 114.2, 0), V(40.9, 119.5, 0)), False)
sketch6.addGeometry(Part.LineSegment(V(40.9, 119.5, 0), V(35.9, 119.5, 0)), False)
sketch6.addGeometry(Part.LineSegment(V(35.9, 119.5, 0), V(35.9, 107.2, 0)), False)
sketch6.addConstraint(Sketcher.Constraint("Coincident", 0, 2, 1, 2))
sketch6.addConstraint(Sketcher.Constraint("Tangent", 1, 1, 2, 2))
sketch6.addConstraint(Sketcher.Constraint("Tangent", 2, 1, 3, 1))
sketch6.addConstraint(Sketcher.Constraint("Tangent", 3, 2, 4, 2))
sketch6.addConstraint(Sketcher.Constraint("Coincident", 4, 1, 5, 1))
sketch6.addConstraint(Sketcher.Constraint("Coincident", 5, 2, 6, 1))
sketch6.addConstraint(Sketcher.Constraint("Coincident", 6, 2, 7, 1))
sketch6.addConstraint(Sketcher.Constraint("Coincident", 7, 2, 0, 1))
sketch6.addConstraint(Sketcher.Constraint("Coincident", 8, 2, 9, 2))
sketch6.addConstraint(Sketcher.Constraint("Tangent", 9, 1, 10, 1))
sketch6.addConstraint(Sketcher.Constraint("Tangent", 10, 2, 11, 2))
sketch6.addConstraint(Sketcher.Constraint("Tangent", 11, 1, 12, 2))
sketch6.addConstraint(Sketcher.Constraint("Coincident", 12, 1, 13, 1))
sketch6.addConstraint(Sketcher.Constraint("Coincident", 13, 2, 14, 1))
sketch6.addConstraint(Sketcher.Constraint("Coincident", 14, 2, 15, 1))
sketch6.addConstraint(Sketcher.Constraint("Coincident", 15, 2, 8, 1))
sketch6.addConstraint(Sketcher.Constraint("Vertical", 0))
sketch6.addConstraint(Sketcher.Constraint("Horizontal", 5))
sketch6.addConstraint(Sketcher.Constraint("Vertical", 6))
sketch6.addConstraint(Sketcher.Constraint("Horizontal", 7))
sketch6.addConstraint(Sketcher.Constraint("Horizontal", 8))
sketch6.addConstraint(Sketcher.Constraint("Vertical", 13))
sketch6.addConstraint(Sketcher.Constraint("Horizontal", 14))
sketch6.addConstraint(Sketcher.Constraint("Vertical", 15))
sketch6.addConstraint(Sketcher.Constraint("Equal", 4, 9))
sketch6.addConstraint(Sketcher.Constraint("Equal", 3, 10))
sketch6.addConstraint(Sketcher.Constraint("Equal", 2, 11))
sketch6.addConstraint(Sketcher.Constraint("Equal", 1, 12))
sketch6.addConstraint(Sketcher.Constraint("Horizontal", 9, 3, 8, 2))
sketch6.addConstraint(Sketcher.Constraint("Horizontal", 1, 1, 11, 1))
sketch6.addConstraint(Sketcher.Constraint("Horizontal", 0, 2, 12, 1))
sketch6.addConstraint(Sketcher.Constraint("Horizontal", 7, 2, 13, 2))
sketch6.addConstraint(Sketcher.Constraint("Equal", 5, 8))
sketch6.addConstraint(Sketcher.Constraint("Equal", 7, 14))
sketch6.addConstraint(Sketcher.Constraint("Radius", 1, Q("5 mm")))
sketch6.addConstraint(Sketcher.Constraint("Radius", 2, Q("2 mm")))
sketch6.addConstraint(Sketcher.Constraint("Radius", 4, Q("3 mm")))
sketch6.addConstraint(Sketcher.Constraint("DistanceX", 5, 1, 5, 2, Q("3 mm")))
sketch6.addConstraint(Sketcher.Constraint("DistanceX", 7, 2, 7, 1, Q("5 mm")))
sketch6.addConstraint(Sketcher.Constraint("Radius", 3, Q("0.95 mm")))
sketch6.addConstraint(Sketcher.Constraint("DistanceY", 0, 2, 0, 1, Q("5.31 mm")))
sketch6.addConstraint(Sketcher.Constraint("DistanceY", -1, 1, 6, 2, Q("119.5 mm")))
sketch6.addConstraint(Sketcher.Constraint("DistanceX", 4, 3, 3, 3, Q("3.2 mm")))
sketch6.addConstraint(Sketcher.Constraint("DistanceX", 10, 3, 9, 3, Q("3.2 mm")))
sketch6.addConstraint(Sketcher.Constraint("DistanceY", -1, 1, 1, 1, Q("111.93 mm")))
sketch6.addConstraint(Sketcher.Constraint("DistanceX", 3, 3, 9, 3, Q("79.45 mm")))
sketch6.addConstraint(Sketcher.Constraint("DistanceX", 1, 1, 3, 3, Q("0.57 mm")))
sketch6.addConstraint(Sketcher.Constraint("DistanceX", 10, 3, 11, 1, Q("0.51 mm")))
sketch6.addConstraint(Sketcher.Constraint("DistanceY", 4, 1, 2, 1, Q("2.843001 mm")))
sketch6.addConstraint(Sketcher.Constraint("DistanceX", 3, 3, -1, 1, Q("37.556099 mm")))
pocket3 = body.newObject("PartDesign::Pocket", "Pocket002")
pocket3.Profile = sketch6
pocket3.Length = 31.4
pocket3.Reversed = True
doc.recompute()

chamfer = body.newObject("PartDesign::Chamfer", "Chamfer")
chamfer.Base = (pocket3, edges_at(pocket3, [
    (0.569, -19.746, 0),
    (-40.877, -18.867, 0),
    (-41.756, 0.454, 0),
    (-40.877, 19.776, 0),
    (0.569, 20.654, 0),
    (42.015, 19.776, 0),
    (42.894, 0.454, 0),
    (42.015, -18.867, 0),
]))
chamfer.Size = 0.4

sketch7 = body.newObject("Sketcher::SketchObject", "Sketch006")
sketch7.AttachmentSupport = (doc.getObject("XY_Plane"), [""])
sketch7.MapMode = "FlatFace"
sketch7.AttachmentOffset = App.Placement(V(0, 0, 4), App.Rotation())
sketch7.addGeometry(Part.Circle(V(-31.8, -10.5, 0), V(0, 0, 1), 1.4), False)
sketch7.addGeometry(Part.Circle(V(32.9, 12.5, 0), V(0, 0, 1), 1.4), False)
sketch7.addGeometry(Part.Circle(V(32.9, -10.5, 0), V(0, 0, 1), 1.4), False)
sketch7.addGeometry(Part.Circle(V(-31.8, 12.5, 0), V(0, 0, 1), 1.4), False)
sketch7.addGeometry(Part.LineSegment(V(29.4, 16.7, 0), V(-28.3, 16.7, 0)), False)
sketch7.addGeometry(Part.LineSegment(V(-28.3, 16.7, 0), V(-28.3, 12.5, 0)), False)
sketch7.addGeometry(Part.ArcOfCircle(Part.Circle(V(-31.8, 12.5, 0), V(0, 0, 1), 3.5), math.radians(-90), math.radians(0)), False)
sketch7.addGeometry(Part.LineSegment(V(-31.8, 9, 0), V(-37.8, 9, 0)), False)
sketch7.addGeometry(Part.LineSegment(V(-37.8, 9, 0), V(-37.8, -7, 0)), False)
sketch7.addGeometry(Part.LineSegment(V(-37.8, -7, 0), V(-31.8, -7, 0)), False)
sketch7.addGeometry(Part.ArcOfCircle(Part.Circle(V(-31.8, -10.5, 0), V(0, 0, 1), 3.5), math.radians(0), math.radians(90)), False)
sketch7.addGeometry(Part.LineSegment(V(-28.3, -10.5, 0), V(-28.3, -15.7, 0)), False)
sketch7.addGeometry(Part.LineSegment(V(-28.3, -15.7, 0), V(29.4, -15.7, 0)), False)
sketch7.addGeometry(Part.LineSegment(V(29.4, -15.7, 0), V(29.4, -10.5, 0)), False)
sketch7.addGeometry(Part.ArcOfCircle(Part.Circle(V(32.9, -10.5, 0), V(0, 0, 1), 3.5), math.radians(90), math.radians(180)), False)
sketch7.addGeometry(Part.LineSegment(V(32.9, -7, 0), V(38.9, -7, 0)), False)
sketch7.addGeometry(Part.LineSegment(V(38.9, -7, 0), V(38.9, 9, 0)), False)
sketch7.addGeometry(Part.LineSegment(V(38.9, 9, 0), V(32.9, 9, 0)), False)
sketch7.addGeometry(Part.ArcOfCircle(Part.Circle(V(32.9, 12.5, 0), V(0, 0, 1), 3.5), math.radians(-180), math.radians(-90)), False)
sketch7.addGeometry(Part.LineSegment(V(29.4, 12.5, 0), V(29.4, 16.7, 0)), False)
sketch7.addConstraint(Sketcher.Constraint("Coincident", 4, 2, 5, 1))
sketch7.addConstraint(Sketcher.Constraint("Tangent", 5, 2, 6, 2))
sketch7.addConstraint(Sketcher.Constraint("Tangent", 6, 1, 7, 1))
sketch7.addConstraint(Sketcher.Constraint("Coincident", 7, 2, 8, 1))
sketch7.addConstraint(Sketcher.Constraint("Coincident", 8, 2, 9, 1))
sketch7.addConstraint(Sketcher.Constraint("Tangent", 9, 2, 10, 2))
sketch7.addConstraint(Sketcher.Constraint("Tangent", 10, 1, 11, 1))
sketch7.addConstraint(Sketcher.Constraint("Coincident", 11, 2, 12, 1))
sketch7.addConstraint(Sketcher.Constraint("Coincident", 12, 2, 13, 1))
sketch7.addConstraint(Sketcher.Constraint("Tangent", 13, 2, 14, 2))
sketch7.addConstraint(Sketcher.Constraint("Tangent", 14, 1, 15, 1))
sketch7.addConstraint(Sketcher.Constraint("Coincident", 15, 2, 16, 1))
sketch7.addConstraint(Sketcher.Constraint("Coincident", 16, 2, 17, 1))
sketch7.addConstraint(Sketcher.Constraint("Tangent", 17, 2, 18, 2))
sketch7.addConstraint(Sketcher.Constraint("Tangent", 18, 1, 19, 1))
sketch7.addConstraint(Sketcher.Constraint("Coincident", 19, 2, 4, 1))
sketch7.addConstraint(Sketcher.Constraint("Horizontal", 4))
sketch7.addConstraint(Sketcher.Constraint("Vertical", 5))
sketch7.addConstraint(Sketcher.Constraint("Horizontal", 7))
sketch7.addConstraint(Sketcher.Constraint("Vertical", 8))
sketch7.addConstraint(Sketcher.Constraint("Horizontal", 9))
sketch7.addConstraint(Sketcher.Constraint("Vertical", 11))
sketch7.addConstraint(Sketcher.Constraint("Horizontal", 12))
sketch7.addConstraint(Sketcher.Constraint("Vertical", 13))
sketch7.addConstraint(Sketcher.Constraint("Horizontal", 15))
sketch7.addConstraint(Sketcher.Constraint("Vertical", 16))
sketch7.addConstraint(Sketcher.Constraint("Horizontal", 17))
sketch7.addConstraint(Sketcher.Constraint("Vertical", 19))
sketch7.addConstraint(Sketcher.Constraint("Coincident", 6, 3, 3, 3))
sketch7.addConstraint(Sketcher.Constraint("Coincident", 10, 3, 0, 3))
sketch7.addConstraint(Sketcher.Constraint("Coincident", 14, 3, 2, 3))
sketch7.addConstraint(Sketcher.Constraint("Coincident", 18, 3, 1, 3))
sketch7.addConstraint(Sketcher.Constraint("Equal", 0, 1))
sketch7.addConstraint(Sketcher.Constraint("Equal", 1, 2))
sketch7.addConstraint(Sketcher.Constraint("Equal", 2, 3))
sketch7.addConstraint(Sketcher.Constraint("Equal", 6, 10))
sketch7.addConstraint(Sketcher.Constraint("Equal", 10, 14))
sketch7.addConstraint(Sketcher.Constraint("Equal", 14, 18))
sketch7.addConstraint(Sketcher.Constraint("Horizontal", 0, 3, 2, 3))
sketch7.addConstraint(Sketcher.Constraint("Horizontal", 1, 3, 3, 3))
sketch7.addConstraint(Sketcher.Constraint("Vertical", 1, 3, 2, 3))
sketch7.addConstraint(Sketcher.Constraint("Vertical", 0, 3, 3, 3))
sketch7.addConstraint(Sketcher.Constraint("Equal", 9, 15))
sketch7.addConstraint(Sketcher.Constraint("Diameter", 0, Q("2.8 mm")))
sketch7.addConstraint(Sketcher.Constraint("Radius", 6, Q("3.5 mm")))
sketch7.addConstraint(Sketcher.Constraint("DistanceX", 7, 2, 7, 1, Q("6 mm")))
sketch7.addConstraint(Sketcher.Constraint("DistanceY", 8, 2, 8, 1, Q("16 mm")))
sketch7.addConstraint(Sketcher.Constraint("DistanceY", 5, 2, 5, 1, Q("4.2 mm")))
sketch7.addConstraint(Sketcher.Constraint("DistanceY", 11, 2, 11, 1, Q("5.2 mm")))
sketch7.addConstraint(Sketcher.Constraint("DistanceX", 4, 2, 4, 1, Q("57.65 mm")))
sketch7.addConstraint(Sketcher.Constraint("DistanceX", 0, 3, -1, 1, Q("31.756099 mm")))
sketch7.addConstraint(Sketcher.Constraint("DistanceY", 0, 3, -1, 1, Q("10.545563 mm")))
pocket4 = body.newObject("PartDesign::Pocket", "Pocket003")
pocket4.Profile = sketch7
pocket4.Length = 2.5

sketch8 = body.newObject("Sketcher::SketchObject", "Sketch007")
sketch8.AttachmentSupport = (doc.getObject("XY_Plane"), [""])
sketch8.MapMode = "FlatFace"
sketch8.AttachmentOffset = App.Placement(V(0, 0, 4), App.Rotation())
sketch8.addGeometry(Part.Circle(V(-31.8, -10.5, 0), V(0, 0, 1), 1.4), False)
sketch8.addGeometry(Part.Circle(V(32.9, 12.5, 0), V(0, 0, 1), 1.4), False)
sketch8.addGeometry(Part.Circle(V(32.9, -10.5, 0), V(0, 0, 1), 1.4), False)
sketch8.addGeometry(Part.Circle(V(-31.8, 12.5, 0), V(0, 0, 1), 1.4), False)
sketch8.addGeometry(Part.LineSegment(V(29.4, 16.7, 0), V(-28.3, 16.7, 0)), False)
sketch8.addGeometry(Part.LineSegment(V(-28.3, 16.7, 0), V(-28.3, 12.5, 0)), False)
sketch8.addGeometry(Part.ArcOfCircle(Part.Circle(V(-31.8, 12.5, 0), V(0, 0, 1), 3.5), math.radians(-90), math.radians(0)), False)
sketch8.addGeometry(Part.LineSegment(V(-31.8, 9, 0), V(-37.8, 9, 0)), False)
sketch8.addGeometry(Part.LineSegment(V(-37.8, 9, 0), V(-37.8, -7, 0)), False)
sketch8.addGeometry(Part.LineSegment(V(-37.8, -7, 0), V(-31.8, -7, 0)), False)
sketch8.addGeometry(Part.ArcOfCircle(Part.Circle(V(-31.8, -10.5, 0), V(0, 0, 1), 3.5), math.radians(0), math.radians(90)), False)
sketch8.addGeometry(Part.LineSegment(V(-28.3, -10.5, 0), V(-28.3, -15.7, 0)), False)
sketch8.addGeometry(Part.LineSegment(V(-28.3, -15.7, 0), V(29.4, -15.7, 0)), False)
sketch8.addGeometry(Part.LineSegment(V(29.4, -15.7, 0), V(29.4, -10.5, 0)), False)
sketch8.addGeometry(Part.ArcOfCircle(Part.Circle(V(32.9, -10.5, 0), V(0, 0, 1), 3.5), math.radians(90), math.radians(180)), False)
sketch8.addGeometry(Part.LineSegment(V(32.9, -7, 0), V(38.9, -7, 0)), False)
sketch8.addGeometry(Part.LineSegment(V(38.9, -7, 0), V(38.9, 9, 0)), False)
sketch8.addGeometry(Part.LineSegment(V(38.9, 9, 0), V(32.9, 9, 0)), False)
sketch8.addGeometry(Part.ArcOfCircle(Part.Circle(V(32.9, 12.5, 0), V(0, 0, 1), 3.5), math.radians(-180), math.radians(-90)), False)
sketch8.addGeometry(Part.LineSegment(V(29.4, 12.5, 0), V(29.4, 16.7, 0)), False)
sketch8.addConstraint(Sketcher.Constraint("Coincident", 4, 2, 5, 1))
sketch8.addConstraint(Sketcher.Constraint("Tangent", 5, 2, 6, 2))
sketch8.addConstraint(Sketcher.Constraint("Tangent", 6, 1, 7, 1))
sketch8.addConstraint(Sketcher.Constraint("Coincident", 7, 2, 8, 1))
sketch8.addConstraint(Sketcher.Constraint("Coincident", 8, 2, 9, 1))
sketch8.addConstraint(Sketcher.Constraint("Tangent", 9, 2, 10, 2))
sketch8.addConstraint(Sketcher.Constraint("Tangent", 10, 1, 11, 1))
sketch8.addConstraint(Sketcher.Constraint("Coincident", 11, 2, 12, 1))
sketch8.addConstraint(Sketcher.Constraint("Coincident", 12, 2, 13, 1))
sketch8.addConstraint(Sketcher.Constraint("Tangent", 13, 2, 14, 2))
sketch8.addConstraint(Sketcher.Constraint("Tangent", 14, 1, 15, 1))
sketch8.addConstraint(Sketcher.Constraint("Coincident", 15, 2, 16, 1))
sketch8.addConstraint(Sketcher.Constraint("Coincident", 16, 2, 17, 1))
sketch8.addConstraint(Sketcher.Constraint("Tangent", 17, 2, 18, 2))
sketch8.addConstraint(Sketcher.Constraint("Tangent", 18, 1, 19, 1))
sketch8.addConstraint(Sketcher.Constraint("Coincident", 19, 2, 4, 1))
sketch8.addConstraint(Sketcher.Constraint("Horizontal", 4))
sketch8.addConstraint(Sketcher.Constraint("Vertical", 5))
sketch8.addConstraint(Sketcher.Constraint("Horizontal", 7))
sketch8.addConstraint(Sketcher.Constraint("Vertical", 8))
sketch8.addConstraint(Sketcher.Constraint("Horizontal", 9))
sketch8.addConstraint(Sketcher.Constraint("Vertical", 11))
sketch8.addConstraint(Sketcher.Constraint("Horizontal", 12))
sketch8.addConstraint(Sketcher.Constraint("Vertical", 13))
sketch8.addConstraint(Sketcher.Constraint("Horizontal", 15))
sketch8.addConstraint(Sketcher.Constraint("Vertical", 16))
sketch8.addConstraint(Sketcher.Constraint("Horizontal", 17))
sketch8.addConstraint(Sketcher.Constraint("Vertical", 19))
sketch8.addConstraint(Sketcher.Constraint("Coincident", 6, 3, 3, 3))
sketch8.addConstraint(Sketcher.Constraint("Coincident", 10, 3, 0, 3))
sketch8.addConstraint(Sketcher.Constraint("Coincident", 14, 3, 2, 3))
sketch8.addConstraint(Sketcher.Constraint("Coincident", 18, 3, 1, 3))
sketch8.addConstraint(Sketcher.Constraint("Equal", 0, 1))
sketch8.addConstraint(Sketcher.Constraint("Equal", 1, 2))
sketch8.addConstraint(Sketcher.Constraint("Equal", 2, 3))
sketch8.addConstraint(Sketcher.Constraint("Equal", 6, 10))
sketch8.addConstraint(Sketcher.Constraint("Equal", 10, 14))
sketch8.addConstraint(Sketcher.Constraint("Equal", 14, 18))
sketch8.addConstraint(Sketcher.Constraint("Horizontal", 0, 3, 2, 3))
sketch8.addConstraint(Sketcher.Constraint("Horizontal", 1, 3, 3, 3))
sketch8.addConstraint(Sketcher.Constraint("Vertical", 1, 3, 2, 3))
sketch8.addConstraint(Sketcher.Constraint("Vertical", 0, 3, 3, 3))
sketch8.addConstraint(Sketcher.Constraint("Equal", 9, 15))
sketch8.addConstraint(Sketcher.Constraint("Diameter", 0, Q("2.8 mm")))
sketch8.addConstraint(Sketcher.Constraint("Radius", 6, Q("3.5 mm")))
sketch8.addConstraint(Sketcher.Constraint("DistanceX", 7, 2, 7, 1, Q("6 mm")))
sketch8.addConstraint(Sketcher.Constraint("DistanceY", 8, 2, 8, 1, Q("16 mm")))
sketch8.addConstraint(Sketcher.Constraint("DistanceY", 5, 2, 5, 1, Q("4.2 mm")))
sketch8.addConstraint(Sketcher.Constraint("DistanceY", 11, 2, 11, 1, Q("5.2 mm")))
sketch8.addConstraint(Sketcher.Constraint("DistanceX", 4, 2, 4, 1, Q("57.65 mm")))
sketch8.addConstraint(Sketcher.Constraint("DistanceX", 0, 3, -1, 1, Q("31.756099 mm")))
sketch8.addConstraint(Sketcher.Constraint("DistanceY", 0, 3, -1, 1, Q("10.545563 mm")))
pocket5 = body.newObject("PartDesign::Pocket", "Pocket004")
pocket5.Profile = sketch8
pocket5.Length = 4

sketch9 = body.newObject("Sketcher::SketchObject", "Sketch008")
sketch9.AttachmentSupport = (doc.getObject("YZ_Plane"), [""])
sketch9.MapMode = "FlatFace"
sketch9.AttachmentOffset = App.Placement(V(0, 0, 42.893901), App.Rotation())
sketch9.addGeometry(Part.Circle(V(1, 89.5, 0), V(0, 0, 1), 1.6), False)
sketch9.addGeometry(Part.Circle(V(1, 30, 0), V(0, 0, 1), 1.6), False)
sketch9.addConstraint(Sketcher.Constraint("Equal", 0, 1))
sketch9.addConstraint(Sketcher.Constraint("Vertical", 0, 3, 1, 3))
sketch9.addConstraint(Sketcher.Constraint("Diameter", 0, Q("3.2 mm")))
sketch9.addConstraint(Sketcher.Constraint("DistanceY", -1, 1, 1, 3, Q("30 mm")))
sketch9.addConstraint(Sketcher.Constraint("DistanceY", -1, 1, 0, 3, Q("89.5 mm")))
sketch9.addConstraint(Sketcher.Constraint("DistanceX", -1, 1, 0, 3, Q("0.954437 mm")))
pocket6 = body.newObject("PartDesign::Pocket", "Pocket005")
pocket6.Profile = sketch9
pocket6.Type = "ThroughAll"
doc.recompute()

chamfer2 = body.newObject("PartDesign::Chamfer", "Chamfer001")
chamfer2.Base = (pocket6, edges_at(pocket6, [
    (-33.156, 12.454, 0),
    (-33.156, -10.546, 0),
    (31.494, 12.454, 0),
    (31.494, -10.546, 0),
    (35.894, 8.954, 0),
    (38.894, 0.954, 0),
    (35.894, -7.046, 0),
    (0.569, -15.746, 0),
    (-28.256, -13.146, 0),
    (-34.756, -7.046, 0),
    (-37.756, 0.954, 0),
    (-34.756, 8.954, 0),
    (0.569, 16.654, 0),
    (29.394, 14.554, 0),
    (30.419, 9.98, 0),
    (30.419, -8.071, 0),
    (29.394, -13.146, 0),
    (-29.281, -8.071, 0),
    (-29.281, 9.98, 0),
    (-28.256, 14.554, 0),
]))
chamfer2.Size = 0.4
doc.recompute()

chamfer3 = body.newObject("PartDesign::Chamfer", "Chamfer002")
chamfer3.Base = (chamfer2, edges_at(chamfer2, [
    (-33.156, 12.454, 4),
    (-33.156, -10.546, 4),
    (31.494, 12.454, 4),
    (31.494, -10.546, 4),
    (30.419, 9.98, 4),
    (30.419, -8.071, 4),
    (29.394, -13.146, 4),
    (-29.281, -8.071, 4),
    (-29.281, 9.98, 4),
    (-28.256, 14.554, 4),
    (29.394, 14.554, 4),
    (-34.756, 8.954, 4),
    (-34.756, -7.046, 4),
    (-28.256, -13.146, 4),
    (35.894, -7.046, 4),
    (35.894, 8.954, 4),
]))
chamfer3.Size = 0.4

doc.recompute()
